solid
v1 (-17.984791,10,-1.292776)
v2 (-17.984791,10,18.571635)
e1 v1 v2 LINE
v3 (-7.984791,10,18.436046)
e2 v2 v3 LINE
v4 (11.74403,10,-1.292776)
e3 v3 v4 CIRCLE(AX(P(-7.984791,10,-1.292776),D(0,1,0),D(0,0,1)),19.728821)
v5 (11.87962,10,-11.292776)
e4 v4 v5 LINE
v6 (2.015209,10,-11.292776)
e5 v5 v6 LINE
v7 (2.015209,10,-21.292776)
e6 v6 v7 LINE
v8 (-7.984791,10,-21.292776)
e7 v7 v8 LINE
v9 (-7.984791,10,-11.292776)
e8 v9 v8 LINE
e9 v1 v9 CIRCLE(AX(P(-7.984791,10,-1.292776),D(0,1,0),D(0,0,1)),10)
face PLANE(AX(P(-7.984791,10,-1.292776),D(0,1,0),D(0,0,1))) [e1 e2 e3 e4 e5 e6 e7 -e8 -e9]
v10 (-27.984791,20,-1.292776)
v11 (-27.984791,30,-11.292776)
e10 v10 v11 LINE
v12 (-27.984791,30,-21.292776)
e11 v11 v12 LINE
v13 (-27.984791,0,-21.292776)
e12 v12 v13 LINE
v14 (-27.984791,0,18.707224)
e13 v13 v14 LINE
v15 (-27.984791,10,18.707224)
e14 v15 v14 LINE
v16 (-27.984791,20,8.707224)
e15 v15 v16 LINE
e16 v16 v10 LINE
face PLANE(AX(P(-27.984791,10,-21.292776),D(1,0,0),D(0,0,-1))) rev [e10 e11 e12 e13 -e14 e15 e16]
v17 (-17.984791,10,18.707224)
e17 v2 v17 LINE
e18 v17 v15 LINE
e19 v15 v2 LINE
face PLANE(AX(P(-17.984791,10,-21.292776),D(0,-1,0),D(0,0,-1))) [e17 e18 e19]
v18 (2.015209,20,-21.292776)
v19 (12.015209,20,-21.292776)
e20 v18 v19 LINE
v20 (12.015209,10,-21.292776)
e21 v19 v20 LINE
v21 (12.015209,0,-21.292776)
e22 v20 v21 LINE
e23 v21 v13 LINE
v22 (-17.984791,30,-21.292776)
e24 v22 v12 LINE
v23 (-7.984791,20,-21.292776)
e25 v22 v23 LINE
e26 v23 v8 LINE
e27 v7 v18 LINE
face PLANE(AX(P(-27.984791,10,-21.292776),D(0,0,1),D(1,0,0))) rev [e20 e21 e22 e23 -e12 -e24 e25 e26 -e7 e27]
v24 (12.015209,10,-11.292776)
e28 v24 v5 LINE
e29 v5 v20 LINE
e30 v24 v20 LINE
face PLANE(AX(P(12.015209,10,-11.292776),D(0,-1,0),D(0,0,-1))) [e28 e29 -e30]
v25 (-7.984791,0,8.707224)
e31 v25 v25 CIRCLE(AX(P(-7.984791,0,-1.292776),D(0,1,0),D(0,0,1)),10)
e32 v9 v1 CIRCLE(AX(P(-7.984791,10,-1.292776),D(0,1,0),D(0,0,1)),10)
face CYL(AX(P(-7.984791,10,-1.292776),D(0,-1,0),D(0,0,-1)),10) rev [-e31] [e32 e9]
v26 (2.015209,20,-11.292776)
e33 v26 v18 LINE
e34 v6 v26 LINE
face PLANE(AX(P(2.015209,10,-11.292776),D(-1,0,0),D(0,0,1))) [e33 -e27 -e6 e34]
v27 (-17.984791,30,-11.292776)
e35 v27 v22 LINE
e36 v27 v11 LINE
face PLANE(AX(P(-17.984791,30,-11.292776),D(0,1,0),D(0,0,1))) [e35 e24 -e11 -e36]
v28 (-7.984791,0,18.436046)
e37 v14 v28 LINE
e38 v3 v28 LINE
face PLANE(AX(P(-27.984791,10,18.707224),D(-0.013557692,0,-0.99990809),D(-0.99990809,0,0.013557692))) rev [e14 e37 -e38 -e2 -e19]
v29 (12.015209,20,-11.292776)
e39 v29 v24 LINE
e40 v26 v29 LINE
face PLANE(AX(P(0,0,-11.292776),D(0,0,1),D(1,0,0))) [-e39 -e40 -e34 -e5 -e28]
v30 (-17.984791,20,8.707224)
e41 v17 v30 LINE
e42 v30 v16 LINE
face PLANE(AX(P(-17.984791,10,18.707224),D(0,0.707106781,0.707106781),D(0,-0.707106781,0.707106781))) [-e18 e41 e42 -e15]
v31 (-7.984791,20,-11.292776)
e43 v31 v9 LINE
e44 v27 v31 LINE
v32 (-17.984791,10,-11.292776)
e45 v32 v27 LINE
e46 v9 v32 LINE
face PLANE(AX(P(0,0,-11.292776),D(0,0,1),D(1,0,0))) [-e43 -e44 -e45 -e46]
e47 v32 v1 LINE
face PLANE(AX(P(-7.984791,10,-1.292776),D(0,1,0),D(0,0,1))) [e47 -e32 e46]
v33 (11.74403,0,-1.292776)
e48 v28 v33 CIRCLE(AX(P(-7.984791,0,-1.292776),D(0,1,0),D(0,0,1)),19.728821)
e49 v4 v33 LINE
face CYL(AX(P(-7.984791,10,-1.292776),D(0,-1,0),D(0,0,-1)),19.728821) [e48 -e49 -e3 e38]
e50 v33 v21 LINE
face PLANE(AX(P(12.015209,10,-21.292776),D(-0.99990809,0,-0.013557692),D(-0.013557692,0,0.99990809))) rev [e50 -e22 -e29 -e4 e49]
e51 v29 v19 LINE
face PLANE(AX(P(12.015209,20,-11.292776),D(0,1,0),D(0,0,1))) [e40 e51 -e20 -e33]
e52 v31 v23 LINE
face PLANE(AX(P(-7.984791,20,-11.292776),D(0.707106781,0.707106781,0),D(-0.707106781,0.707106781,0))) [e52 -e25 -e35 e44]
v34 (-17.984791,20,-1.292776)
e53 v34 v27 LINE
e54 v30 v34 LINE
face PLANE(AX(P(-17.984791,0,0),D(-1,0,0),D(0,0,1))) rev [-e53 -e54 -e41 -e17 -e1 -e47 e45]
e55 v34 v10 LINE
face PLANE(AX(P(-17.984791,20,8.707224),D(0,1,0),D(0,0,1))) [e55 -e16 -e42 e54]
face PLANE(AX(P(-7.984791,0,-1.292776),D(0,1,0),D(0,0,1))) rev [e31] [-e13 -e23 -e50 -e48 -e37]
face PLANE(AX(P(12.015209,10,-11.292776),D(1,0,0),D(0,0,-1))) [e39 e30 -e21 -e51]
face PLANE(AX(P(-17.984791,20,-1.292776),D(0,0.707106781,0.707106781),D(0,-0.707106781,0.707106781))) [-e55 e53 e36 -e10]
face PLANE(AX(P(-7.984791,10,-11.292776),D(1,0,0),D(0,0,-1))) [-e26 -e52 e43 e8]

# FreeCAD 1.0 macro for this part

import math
import FreeCAD as App
import Part
import Sketcher

V = App.Vector

doc = App.newDocument("Part")
body = doc.addObject("PartDesign::Body", "Body")

# Sketch on XZ plane
sketch1 = doc.addObject("Sketcher::SketchObject", "Sketch")
body.addObject(sketch1)
sketch1.AttachmentSupport = (doc.XZ_Plane, [""])
sketch1.MapMode = "FlatFace"
sketch1.addGeometry([
    Part.LineSegment(V(-27.984791, -21.292776, 0), V(-27.984791, 18.707224, 0)),  # 0
    Part.LineSegment(V(-27.984791, 18.707224, 0), V(-7.984791, 18.436046, 0)),  # 1
    Part.ArcOfCircle(Part.Circle(V(-7.984791, -1.292776, 0), V(0, 0, 1), 19.728821), math.radians(0), math.radians(90)),  # 2
    Part.LineSegment(V(11.74403, -1.292776, 0), V(12.015209, -21.292776, 0)),  # 3
    Part.LineSegment(V(12.015209, -21.292776, 0), V(-27.984791, -21.292776, 0)),  # 4
    Part.Circle(V(-7.984791, -1.292776, 0), V(0, 0, 1), 10),  # 5
], False)
sketch1.addConstraint([
    Sketcher.Constraint("Coincident", 0, 2, 1, 1),
    Sketcher.Constraint("Coincident", 1, 2, 2, 2),
    Sketcher.Constraint("Coincident", 2, 1, 3, 1),
    Sketcher.Constraint("Coincident", 3, 2, 4, 1),
    Sketcher.Constraint("Coincident", 4, 2, 0, 1),
    Sketcher.Constraint("Vertical", 0),
    Sketcher.Constraint("Horizontal", 4),
    Sketcher.Constraint("Coincident", 5, 3, 2, 3),
    Sketcher.Constraint("Horizontal", 5, 3, 2, 1),
    Sketcher.Constraint("Vertical", 5, 3, 1, 2),
    Sketcher.Constraint("Equal", 4, 0),
    Sketcher.Constraint("Equal", 1, 3),
    Sketcher.Constraint("Diameter", 5, 20.0),
    Sketcher.Constraint("DistanceX", 4, 2, 4, 1, 40.0),
    Sketcher.Constraint("DistanceX", 0, 2, 5, 3, 20.0),
    Sketcher.Constraint("Radius", 2, 19.728821),
    Sketcher.Constraint("DistanceX", 2, 3, -1, 1, 7.984791),
    Sketcher.Constraint("DistanceY", 2, 3, -1, 1, 1.292776),
])
pad1 = doc.addObject("PartDesign::Pad", "Pad")
body.addObject(pad1)
pad1.Profile = sketch1
pad1.Length = 10
pad1.Reversed = True

# Sketch on YZ plane
sketch2 = doc.addObject("Sketcher::SketchObject", "Sketch001")
body.addObject(sketch2)
sketch2.AttachmentSupport = (doc.YZ_Plane, [""])
sketch2.MapMode = "FlatFace"
sketch2.AttachmentOffset = App.Placement(V(0, 0, -27.984791), App.Rotation())
sketch2.addGeometry([
    Part.LineSegment(V(10, 18.707224, 0), V(20, 8.707224, 0)),  # 0
    Part.LineSegment(V(20, 8.707224, 0), V(20, -1.292776, 0)),  # 1
    Part.LineSegment(V(20, -1.292776, 0), V(30, -11.292776, 0)),  # 2
    Part.LineSegment(V(30, -11.292776, 0), V(30, -21.292776, 0)),  # 3
    Part.LineSegment(V(30, -21.292776, 0), V(10, -21.292776, 0)),  # 4
    Part.LineSegment(V(10, -21.292776, 0), V(10, 18.707224, 0)),  # 5
], False)
sketch2.addConstraint([
    Sketcher.Constraint("Coincident", 0, 2, 1, 1),
    Sketcher.Constraint("Coincident", 1, 2, 2, 1),
    Sketcher.Constraint("Coincident", 2, 2, 3, 1),
    Sketcher.Constraint("Coincident", 3, 2, 4, 1),
    Sketcher.Constraint("Coincident", 4, 2, 5, 1),
    Sketcher.Constraint("Coincident", 5, 2, 0, 1),
    Sketcher.Constraint("Vertical", 1),
    Sketcher.Constraint("Vertical", 3),
    Sketcher.Constraint("Horizontal", 4),
    Sketcher.Constraint("Vertical", 5),
    Sketcher.Constraint("Parallel", 0, 2),
    Sketcher.Constraint("Equal", 1, 3),
    Sketcher.Constraint("Equal", 0, 2),
    Sketcher.Constraint("DistanceX", 4, 2, 4, 1, 20.0),
    Sketcher.Constraint("DistanceY", 1, 2, 1, 1, 10.0),
    Sketcher.Constraint("DistanceY", 5, 1, 5, 2, 40.0),
    Sketcher.Constraint("DistanceX", -1, 1, 0, 2, 20.0),
    Sketcher.Constraint("DistanceY", -1, 1, 0, 2, 8.707224),
])
pad2 = doc.addObject("PartDesign::Pad", "Pad001")
body.addObject(pad2)
pad2.Profile = sketch2
pad2.Length = 10

# Sketch on XY plane
sketch3 = doc.addObject("Sketcher::SketchObject", "Sketch002")
body.addObject(sketch3)
sketch3.AttachmentSupport = (doc.XY_Plane, [""])
sketch3.MapMode = "FlatFace"
sketch3.AttachmentOffset = App.Placement(V(0, 0, -21.292776), App.Rotation())
sketch3.addGeometry([
    Part.LineSegment(V(-17.984791, 10, 0), V(-17.984791, 30, 0)),  # 0
    Part.LineSegment(V(-17.984791, 30, 0), V(-7.984791, 20, 0)),  # 1
    Part.LineSegment(V(-7.984791, 20, 0), V(-7.984791, 10, 0)),  # 2
    Part.LineSegment(V(-7.984791, 10, 0), V(-17.984791, 10, 0)),  # 3
    Part.LineSegment(V(12.015209, 20, 0), V(12.015209, 10, 0)),  # 4
    Part.LineSegment(V(12.015209, 10, 0), V(2.015209, 10, 0)),  # 5
    Part.LineSegment(V(2.015209, 10, 0), V(2.015209, 20, 0)),  # 6
    Part.LineSegment(V(2.015209, 20, 0), V(12.015209, 20, 0)),  # 7
], False)
sketch3.addConstraint([
    Sketcher.Constraint("Coincident", 0, 2, 1, 1),
    Sketcher.Constraint("Coincident", 1, 2, 2, 1),
    Sketcher.Constraint("Coincident", 2, 2, 3, 1),
    Sketcher.Constraint("Coincident", 3, 2, 0, 1),
    Sketcher.Constraint("Coincident", 4, 2, 5, 1),
    Sketcher.Constraint("Coincident", 5, 2, 6, 1),
    Sketcher.Constraint("Coincident", 6, 2, 7, 1),
    Sketcher.Constraint("Coincident", 7, 2, 4, 1),
    Sketcher.Constraint("Vertical", 0),
    Sketcher.Constraint("Vertical", 2),
    Sketcher.Constraint("Horizontal", 3),
    Sketcher.Constraint("Vertical", 4),
    Sketcher.Constraint("Horizontal", 5),
    Sketcher.Constraint("Vertical", 6),
    Sketcher.Constraint("Horizontal", 7),
    Sketcher.Constraint("Horizontal", 3, 2, 4, 2),
    Sketcher.Constraint("Horizontal", 1, 2, 6, 2),
    Sketcher.Constraint("Equal", 3, 5),
    Sketcher.Constraint("Equal", 7, 2),
    Sketcher.Constraint("DistanceX", 3, 2, 3, 1, 10.0),
    Sketcher.Constraint("DistanceY", 0, 1, 0, 2, 20.0),
    Sketcher.Constraint("DistanceY", -1, 1, 0, 2, 30.0),
    Sketcher.Constraint("DistanceX", 2, 2, 4, 2, 20.0),
    Sketcher.Constraint("DistanceX", 0, 2, -1, 1, 17.984791),
])
pad3 = doc.addObject("PartDesign::Pad", "Pad002")
body.addObject(pad3)
pad3.Profile = sketch3
pad3.Length = 10

doc.recompute()
